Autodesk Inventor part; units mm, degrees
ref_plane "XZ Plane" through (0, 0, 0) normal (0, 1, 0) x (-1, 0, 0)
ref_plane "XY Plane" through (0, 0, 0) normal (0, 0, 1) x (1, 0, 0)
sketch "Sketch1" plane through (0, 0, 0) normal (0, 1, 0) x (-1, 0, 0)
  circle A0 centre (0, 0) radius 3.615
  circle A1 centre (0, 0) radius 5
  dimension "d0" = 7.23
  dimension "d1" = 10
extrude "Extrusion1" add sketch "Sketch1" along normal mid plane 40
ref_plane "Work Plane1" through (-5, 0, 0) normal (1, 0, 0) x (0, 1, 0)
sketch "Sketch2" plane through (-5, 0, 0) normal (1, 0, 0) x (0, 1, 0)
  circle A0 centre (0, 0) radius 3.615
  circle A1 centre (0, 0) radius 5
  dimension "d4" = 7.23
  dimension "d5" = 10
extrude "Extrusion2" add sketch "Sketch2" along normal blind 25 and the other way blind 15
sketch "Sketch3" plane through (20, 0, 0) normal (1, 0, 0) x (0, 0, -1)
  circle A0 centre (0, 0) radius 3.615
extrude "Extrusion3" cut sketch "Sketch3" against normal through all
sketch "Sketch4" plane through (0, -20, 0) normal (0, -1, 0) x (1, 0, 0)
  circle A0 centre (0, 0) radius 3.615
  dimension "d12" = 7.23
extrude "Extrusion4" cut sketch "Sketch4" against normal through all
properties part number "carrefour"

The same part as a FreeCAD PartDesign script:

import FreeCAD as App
import Part
import Sketcher

doc = App.newDocument("Part")
params = doc.addObject("Spreadsheet::Sheet", "Params")
for row, (alias, value) in enumerate([
    ("sketch1_diameter", "10 mm"),
    ("sketch1_diameter2", "7.23 mm"),
    ("pad1_length", "40 mm"),
    ("sketch2_diameter", "10 mm"),
    ("sketch2_diameter2", "7.23 mm"),
    ("pad2_length", "25 mm"),
    ("pad2_length2", "15 mm"),
    ("sketch3_diameter", "7.23 mm"),
    ("sketch4_diameter", "7.23 mm"),
], start=1):
    params.set(f"A{row}", alias)
    params.set(f"B{row}", "=" + value)
    params.setAlias(f"B{row}", alias)

body = doc.addObject("PartDesign::Body", "Body")

sketch1 = body.newObject("Sketcher::SketchObject", "Sketch")
sketch1.AttachmentSupport = (doc.getObject("XZ_Plane"), [""])
sketch1.MapMode = "FlatFace"
sketch1.addGeometry(Part.Circle(App.Vector(0, 0, 0), App.Vector(0, 0, 1), 5), False)
sketch1.addGeometry(Part.Circle(App.Vector(0, 0, 0), App.Vector(0, 0, 1), 3.615), False)
sketch1.addConstraint(Sketcher.Constraint("Coincident", 0, 3, -1, 1))
sketch1.addConstraint(Sketcher.Constraint("Coincident", 1, 3, -1, 1))
sketch1.addConstraint(Sketcher.Constraint("Diameter", 0, 10.0))
sketch1.addConstraint(Sketcher.Constraint("Diameter", 1, 7.23))
sketch1.setExpression("Constraints[2]", "Params.sketch1_diameter")
sketch1.setExpression("Constraints[3]", "Params.sketch1_diameter2")
pad1 = body.newObject("PartDesign::Pad", "Pad")
pad1.Profile = sketch1
pad1.setExpression("Length", "Params.pad1_length")
pad1.Midplane = True

sketch2 = body.newObject("Sketcher::SketchObject", "Sketch001")
sketch2.AttachmentSupport = (doc.getObject("YZ_Plane"), [""])
sketch2.MapMode = "FlatFace"
sketch2.AttachmentOffset = App.Placement(App.Vector(0, 0, -5), App.Rotation())
sketch2.addGeometry(Part.Circle(App.Vector(0, 0, 0), App.Vector(0, 0, 1), 5), False)
sketch2.addGeometry(Part.Circle(App.Vector(0, 0, 0), App.Vector(0, 0, 1), 3.615), False)
sketch2.addConstraint(Sketcher.Constraint("Coincident", 0, 3, -1, 1))
sketch2.addConstraint(Sketcher.Constraint("Coincident", 1, 3, -1, 1))
sketch2.addConstraint(Sketcher.Constraint("Diameter", 0, 10.0))
sketch2.addConstraint(Sketcher.Constraint("Diameter", 1, 7.23))
sketch2.setExpression("Constraints[2]", "Params.sketch2_diameter")
sketch2.setExpression("Constraints[3]", "Params.sketch2_diameter2")
pad2 = body.newObject("PartDesign::Pad", "Pad001")
pad2.Profile = sketch2
pad2.Type = "TwoLengths"
pad2.setExpression("Length", "Params.pad2_length")
pad2.setExpression("Length2", "Params.pad2_length2")

sketch3 = body.newObject("Sketcher::SketchObject", "Sketch002")
sketch3.AttachmentSupport = (doc.getObject("YZ_Plane"), [""])
sketch3.MapMode = "FlatFace"
sketch3.AttachmentOffset = App.Placement(App.Vector(0, 0, 20), App.Rotation())
sketch3.addGeometry(Part.Circle(App.Vector(0, 0, 0), App.Vector(0, 0, 1), 3.615), False)
sketch3.addConstraint(Sketcher.Constraint("Coincident", 0, 3, -1, 1))
sketch3.addConstraint(Sketcher.Constraint("Diameter", 0, 7.23))
sketch3.setExpression("Constraints[1]", "Params.sketch3_diameter")
pocket1 = body.newObject("PartDesign::Pocket", "Pocket")
pocket1.Profile = sketch3
pocket1.Type = "ThroughAll"

sketch4 = body.newObject("Sketcher::SketchObject", "Sketch003")
sketch4.AttachmentSupport = (doc.getObject("XZ_Plane"), [""])
sketch4.MapMode = "FlatFace"
sketch4.AttachmentOffset = App.Placement(App.Vector(0, 0, 20), App.Rotation())
sketch4.addGeometry(Part.Circle(App.Vector(0, 0, 0), App.Vector(0, 0, 1), 3.615), False)
sketch4.addConstraint(Sketcher.Constraint("Coincident", 0, 3, -1, 1))
sketch4.addConstraint(Sketcher.Constraint("Diameter", 0, 7.23))
sketch4.setExpression("Constraints[1]", "Params.sketch4_diameter")
pocket2 = body.newObject("PartDesign::Pocket", "Pocket001")
pocket2.Profile = sketch4
pocket2.Type = "ThroughAll"

doc.recompute()
